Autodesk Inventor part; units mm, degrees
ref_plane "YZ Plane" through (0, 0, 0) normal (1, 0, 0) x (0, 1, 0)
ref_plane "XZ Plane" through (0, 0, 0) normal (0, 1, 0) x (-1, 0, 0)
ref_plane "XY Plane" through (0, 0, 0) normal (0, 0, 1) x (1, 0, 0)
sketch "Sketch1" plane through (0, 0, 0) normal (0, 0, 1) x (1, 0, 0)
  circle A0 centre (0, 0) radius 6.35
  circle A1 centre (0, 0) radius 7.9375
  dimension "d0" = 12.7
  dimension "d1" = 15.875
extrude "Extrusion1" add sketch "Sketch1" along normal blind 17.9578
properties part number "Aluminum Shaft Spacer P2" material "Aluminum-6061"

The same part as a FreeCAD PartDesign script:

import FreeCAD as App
import Part
import Sketcher

V = App.Vector
Q = App.Units.Quantity

doc = App.newDocument("Part")
body = doc.addObject("PartDesign::Body", "Body")

sketch1 = body.newObject("Sketcher::SketchObject", "Sketch")
sketch1.AttachmentSupport = (doc.getObject("XY_Plane"), [""])
sketch1.MapMode = "FlatFace"
sketch1.addGeometry(Part.Circle(V(0, 0, 0), V(0, 0, 1), 8), False)
sketch1.addGeometry(Part.Circle(V(0, 0, 0), V(0, 0, 1), 6), False)
sketch1.addConstraint(Sketcher.Constraint("Coincident", 0, 3, -1, 1))
sketch1.addConstraint(Sketcher.Constraint("Coincident", 1, 3, -1, 1))
sketch1.addConstraint(Sketcher.Constraint("Diameter", 1, Q("0.5 in")))
sketch1.addConstraint(Sketcher.Constraint("Diameter", 0, Q("0.625 in")))
pad1 = body.newObject("PartDesign::Pad", "Pad")
pad1.Profile = sketch1
pad1.Length = Q("0.707 in")

doc.recompute()
